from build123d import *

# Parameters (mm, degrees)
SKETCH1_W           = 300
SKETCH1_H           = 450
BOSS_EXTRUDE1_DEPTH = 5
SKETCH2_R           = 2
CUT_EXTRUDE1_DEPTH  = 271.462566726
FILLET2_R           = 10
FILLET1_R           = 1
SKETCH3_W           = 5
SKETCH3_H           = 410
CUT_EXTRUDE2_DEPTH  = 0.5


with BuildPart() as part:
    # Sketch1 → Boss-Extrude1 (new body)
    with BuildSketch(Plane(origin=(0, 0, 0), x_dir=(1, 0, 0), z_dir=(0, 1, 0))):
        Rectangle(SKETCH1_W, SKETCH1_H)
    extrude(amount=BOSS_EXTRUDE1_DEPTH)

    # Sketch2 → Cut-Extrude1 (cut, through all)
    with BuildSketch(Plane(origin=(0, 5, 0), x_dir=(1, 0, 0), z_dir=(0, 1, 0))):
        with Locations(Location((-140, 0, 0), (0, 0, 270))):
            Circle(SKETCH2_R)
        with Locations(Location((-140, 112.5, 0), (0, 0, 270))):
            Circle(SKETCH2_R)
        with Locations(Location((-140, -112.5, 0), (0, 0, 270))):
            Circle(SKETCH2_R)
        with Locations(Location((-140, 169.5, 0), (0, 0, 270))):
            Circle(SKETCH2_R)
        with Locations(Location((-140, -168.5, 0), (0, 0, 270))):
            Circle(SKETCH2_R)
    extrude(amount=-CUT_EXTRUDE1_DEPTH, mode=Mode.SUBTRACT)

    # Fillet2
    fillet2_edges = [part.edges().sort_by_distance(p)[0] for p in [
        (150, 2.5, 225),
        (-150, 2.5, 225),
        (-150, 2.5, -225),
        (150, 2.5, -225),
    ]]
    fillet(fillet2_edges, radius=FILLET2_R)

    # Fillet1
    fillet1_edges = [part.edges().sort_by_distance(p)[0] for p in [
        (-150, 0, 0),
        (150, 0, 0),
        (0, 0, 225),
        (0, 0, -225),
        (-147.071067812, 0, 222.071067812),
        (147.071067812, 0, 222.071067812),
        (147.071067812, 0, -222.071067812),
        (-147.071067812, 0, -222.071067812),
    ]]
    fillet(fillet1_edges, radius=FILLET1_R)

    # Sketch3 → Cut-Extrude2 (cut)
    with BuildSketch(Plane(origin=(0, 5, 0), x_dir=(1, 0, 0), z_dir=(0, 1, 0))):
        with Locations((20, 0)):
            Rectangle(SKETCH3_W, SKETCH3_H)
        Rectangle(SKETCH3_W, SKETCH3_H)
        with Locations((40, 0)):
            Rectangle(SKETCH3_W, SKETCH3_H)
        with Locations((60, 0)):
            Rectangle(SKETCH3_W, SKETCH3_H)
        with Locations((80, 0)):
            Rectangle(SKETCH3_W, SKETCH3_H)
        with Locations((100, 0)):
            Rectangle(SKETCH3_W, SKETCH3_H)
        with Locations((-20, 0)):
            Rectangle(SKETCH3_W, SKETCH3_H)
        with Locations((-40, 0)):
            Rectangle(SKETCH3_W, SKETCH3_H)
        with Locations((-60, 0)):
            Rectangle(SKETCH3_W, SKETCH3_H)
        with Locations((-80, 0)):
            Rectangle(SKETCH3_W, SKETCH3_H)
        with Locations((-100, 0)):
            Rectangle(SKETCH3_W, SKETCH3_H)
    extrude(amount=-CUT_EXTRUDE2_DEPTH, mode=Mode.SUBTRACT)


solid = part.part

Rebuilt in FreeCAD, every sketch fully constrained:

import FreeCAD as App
import Part
import Sketcher


def edges_at(feature, points):
    """Names of the edges that pass closest to the given points."""
    edges = feature.Shape.Edges
    near = lambda p: min(range(len(edges)), key=lambda i: edges[i].distToShape(Part.Vertex(*p))[0])
    return sorted({f"Edge{near(p) + 1}" for p in points})

doc = App.newDocument("Part")
params = doc.addObject("Spreadsheet::Sheet", "Params")
for row, (alias, value) in enumerate([
    ("sketch1_width", "300 mm"),
    ("sketch1_height", "450 mm"),
    ("pad1_length", "5 mm"),
    ("sketch2_diameter", "4 mm"),
    ("fillet_radius", "10 mm"),
    ("fillet2_radius", "1 mm"),
    ("sketch3_width", "5 mm"),
    ("sketch3_height", "410 mm"),
    ("pocket2_length", "0.5 mm"),
], start=1):
    params.set(f"A{row}", alias)
    params.set(f"B{row}", "=" + value)
    params.setAlias(f"B{row}", alias)

body = doc.addObject("PartDesign::Body", "Body")

sketch1 = body.newObject("Sketcher::SketchObject", "Sketch")
sketch1.AttachmentSupport = (doc.getObject("XZ_Plane"), [""])
sketch1.MapMode = "FlatFace"
sketch1.addGeometry([
    Part.LineSegment(App.Vector(-150, -225, 0), App.Vector(-150, 225, 0)),
    Part.LineSegment(App.Vector(-150, 225, 0), App.Vector(150, 225, 0)),
    Part.LineSegment(App.Vector(150, 225, 0), App.Vector(150, -225, 0)),
    Part.LineSegment(App.Vector(150, -225, 0), App.Vector(-150, -225, 0)),
], False)
sketch1.addConstraint([
    Sketcher.Constraint("Coincident", 0, 2, 1, 1),
    Sketcher.Constraint("Coincident", 1, 2, 2, 1),
    Sketcher.Constraint("Coincident", 2, 2, 3, 1),
    Sketcher.Constraint("Coincident", 3, 2, 0, 1),
    Sketcher.Constraint("Vertical", 0),
    Sketcher.Constraint("Horizontal", 1),
    Sketcher.Constraint("Vertical", 2),
    Sketcher.Constraint("Horizontal", 3),
    Sketcher.Constraint("Symmetric", 0, 2, 2, 2, -1, 1),
    Sketcher.Constraint("DistanceX", 1, 1, 1, 2, 300.0),
    Sketcher.Constraint("DistanceY", 0, 1, 0, 2, 450.0),
])
sketch1.setExpression("Constraints[9]", "Params.sketch1_width")
sketch1.setExpression("Constraints[10]", "Params.sketch1_height")
pad1 = body.newObject("PartDesign::Pad", "Pad")
pad1.Profile = sketch1
pad1.setExpression("Length", "Params.pad1_length")
pad1.Reversed = True

sketch2 = body.newObject("Sketcher::SketchObject", "Sketch001")
sketch2.AttachmentSupport = (doc.getObject("XZ_Plane"), [""])
sketch2.MapMode = "FlatFace"
sketch2.AttachmentOffset = App.Placement(App.Vector(0, 0, -5), App.Rotation())
sketch2.addGeometry([
    Part.Circle(App.Vector(-140, 0, 0), App.Vector(0, 0, 1), 2),
    Part.Circle(App.Vector(-140, -112.5, 0), App.Vector(0, 0, 1), 2),
    Part.Circle(App.Vector(-140, 112.5, 0), App.Vector(0, 0, 1), 2),
    Part.Circle(App.Vector(-140, -169.5, 0), App.Vector(0, 0, 1), 2),
    Part.Circle(App.Vector(-140, 168.5, 0), App.Vector(0, 0, 1), 2),
], False)
sketch2.addConstraint([
    Sketcher.Constraint("Equal", 0, 1),
    Sketcher.Constraint("Equal", 1, 2),
    Sketcher.Constraint("Equal", 2, 3),
    Sketcher.Constraint("Equal", 3, 4),
    Sketcher.Constraint("Symmetric", 1, 3, 2, 3, -1),
    Sketcher.Constraint("PointOnObject", 0, 3, -1),
    Sketcher.Constraint("Vertical", 0, 3, 1, 3),
    Sketcher.Constraint("Vertical", 2, 3, 3, 3),
    Sketcher.Constraint("Vertical", 3, 3, 4, 3),
    Sketcher.Constraint("Diameter", 0, 4.0),
    Sketcher.Constraint("DistanceX", 0, 3, -1, 1, 140.0),
    Sketcher.Constraint("DistanceY", 1, 3, 2, 3, 225.0),
    Sketcher.Constraint("DistanceY", 3, 3, 1, 3, 57.0),
    Sketcher.Constraint("DistanceY", 2, 3, 4, 3, 56.0),
])
sketch2.setExpression("Constraints[9]", "Params.sketch2_diameter")
pocket1 = body.newObject("PartDesign::Pocket", "Pocket")
pocket1.Profile = sketch2
pocket1.Type = "ThroughAll"
pocket1.Reversed = True
doc.recompute()

fillet = body.newObject("PartDesign::Fillet", "Fillet")
fillet.Base = (pocket1, edges_at(pocket1, [
    (150, 2.5, 225),
    (-150, 2.5, 225),
    (-150, 2.5, -225),
    (150, 2.5, -225),
]))
fillet.setExpression("Radius", "Params.fillet_radius")
doc.recompute()

fillet2 = body.newObject("PartDesign::Fillet", "Fillet001")
fillet2.Base = (fillet, edges_at(fillet, [
    (-150, 0, 0),
    (150, 0, 0),
    (0, 0, 225),
    (0, 0, -225),
    (-147.071, 0, 222.071),
    (147.071, 0, 222.071),
    (147.071, 0, -222.071),
    (-147.071, 0, -222.071),
]))
fillet2.setExpression("Radius", "Params.fillet2_radius")

sketch3 = body.newObject("Sketcher::SketchObject", "Sketch002")
sketch3.AttachmentSupport = (doc.getObject("XZ_Plane"), [""])
sketch3.MapMode = "FlatFace"
sketch3.AttachmentOffset = App.Placement(App.Vector(0, 0, -5), App.Rotation())
sketch3.addGeometry([
    Part.LineSegment(App.Vector(17.5, -205, 0), App.Vector(17.5, 205, 0)),
    Part.LineSegment(App.Vector(17.5, 205, 0), App.Vector(22.5, 205, 0)),
    Part.LineSegment(App.Vector(22.5, 205, 0), App.Vector(22.5, -205, 0)),
    Part.LineSegment(App.Vector(22.5, -205, 0), App.Vector(17.5, -205, 0)),
    Part.LineSegment(App.Vector(-2.5, -205, 0), App.Vector(-2.5, 205, 0)),
    Part.LineSegment(App.Vector(-2.5, 205, 0), App.Vector(2.5, 205, 0)),
    Part.LineSegment(App.Vector(2.5, 205, 0), App.Vector(2.5, -205, 0)),
    Part.LineSegment(App.Vector(2.5, -205, 0), App.Vector(-2.5, -205, 0)),
    Part.LineSegment(App.Vector(37.5, -205, 0), App.Vector(37.5, 205, 0)),
    Part.LineSegment(App.Vector(37.5, 205, 0), App.Vector(42.5, 205, 0)),
    Part.LineSegment(App.Vector(42.5, 205, 0), App.Vector(42.5, -205, 0)),
    Part.LineSegment(App.Vector(42.5, -205, 0), App.Vector(37.5, -205, 0)),
    Part.LineSegment(App.Vector(57.5, -205, 0), App.Vector(57.5, 205, 0)),
    Part.LineSegment(App.Vector(57.5, 205, 0), App.Vector(62.5, 205, 0)),
    Part.LineSegment(App.Vector(62.5, 205, 0), App.Vector(62.5, -205, 0)),
    Part.LineSegment(App.Vector(62.5, -205, 0), App.Vector(57.5, -205, 0)),
    Part.LineSegment(App.Vector(77.5, -205, 0), App.Vector(77.5, 205, 0)),
    Part.LineSegment(App.Vector(77.5, 205, 0), App.Vector(82.5, 205, 0)),
    Part.LineSegment(App.Vector(82.5, 205, 0), App.Vector(82.5, -205, 0)),
    Part.LineSegment(App.Vector(82.5, -205, 0), App.Vector(77.5, -205, 0)),
    Part.LineSegment(App.Vector(97.5, -205, 0), App.Vector(97.5, 205, 0)),
    Part.LineSegment(App.Vector(97.5, 205, 0), App.Vector(102.5, 205, 0)),
    Part.LineSegment(App.Vector(102.5, 205, 0), App.Vector(102.5, -205, 0)),
    Part.LineSegment(App.Vector(102.5, -205, 0), App.Vector(97.5, -205, 0)),
    Part.LineSegment(App.Vector(-22.5, -205, 0), App.Vector(-22.5, 205, 0)),
    Part.LineSegment(App.Vector(-22.5, 205, 0), App.Vector(-17.5, 205, 0)),
    Part.LineSegment(App.Vector(-17.5, 205, 0), App.Vector(-17.5, -205, 0)),
    Part.LineSegment(App.Vector(-17.5, -205, 0), App.Vector(-22.5, -205, 0)),
    Part.LineSegment(App.Vector(-42.5, -205, 0), App.Vector(-42.5, 205, 0)),
    Part.LineSegment(App.Vector(-42.5, 205, 0), App.Vector(-37.5, 205, 0)),
    Part.LineSegment(App.Vector(-37.5, 205, 0), App.Vector(-37.5, -205, 0)),
    Part.LineSegment(App.Vector(-37.5, -205, 0), App.Vector(-42.5, -205, 0)),
    Part.LineSegment(App.Vector(-62.5, -205, 0), App.Vector(-62.5, 205, 0)),
    Part.LineSegment(App.Vector(-62.5, 205, 0), App.Vector(-57.5, 205, 0)),
    Part.LineSegment(App.Vector(-57.5, 205, 0), App.Vector(-57.5, -205, 0)),
    Part.LineSegment(App.Vector(-57.5, -205, 0), App.Vector(-62.5, -205, 0)),
    Part.LineSegment(App.Vector(-82.5, -205, 0), App.Vector(-82.5, 205, 0)),
    Part.LineSegment(App.Vector(-82.5, 205, 0), App.Vector(-77.5, 205, 0)),
    Part.LineSegment(App.Vector(-77.5, 205, 0), App.Vector(-77.5, -205, 0)),
    Part.LineSegment(App.Vector(-77.5, -205, 0), App.Vector(-82.5, -205, 0)),
    Part.LineSegment(App.Vector(-102.5, -205, 0), App.Vector(-102.5, 205, 0)),
    Part.LineSegment(App.Vector(-102.5, 205, 0), App.Vector(-97.5, 205, 0)),
    Part.LineSegment(App.Vector(-97.5, 205, 0), App.Vector(-97.5, -205, 0)),
    Part.LineSegment(App.Vector(-97.5, -205, 0), App.Vector(-102.5, -205, 0)),
], False)
sketch3.addConstraint([
    Sketcher.Constraint("Coincident", 0, 2, 1, 1),
    Sketcher.Constraint("Coincident", 1, 2, 2, 1),
    Sketcher.Constraint("Coincident", 2, 2, 3, 1),
    Sketcher.Constraint("Coincident", 3, 2, 0, 1),
    Sketcher.Constraint("Coincident", 4, 2, 5, 1),
    Sketcher.Constraint("Coincident", 5, 2, 6, 1),
    Sketcher.Constraint("Coincident", 6, 2, 7, 1),
    Sketcher.Constraint("Coincident", 7, 2, 4, 1),
    Sketcher.Constraint("Coincident", 8, 2, 9, 1),
    Sketcher.Constraint("Coincident", 9, 2, 10, 1),
    Sketcher.Constraint("Coincident", 10, 2, 11, 1),
    Sketcher.Constraint("Coincident", 11, 2, 8, 1),
    Sketcher.Constraint("Coincident", 12, 2, 13, 1),
    Sketcher.Constraint("Coincident", 13, 2, 14, 1),
    Sketcher.Constraint("Coincident", 14, 2, 15, 1),
    Sketcher.Constraint("Coincident", 15, 2, 12, 1),
    Sketcher.Constraint("Coincident", 16, 2, 17, 1),
    Sketcher.Constraint("Coincident", 17, 2, 18, 1),
    Sketcher.Constraint("Coincident", 18, 2, 19, 1),
    Sketcher.Constraint("Coincident", 19, 2, 16, 1),
    Sketcher.Constraint("Coincident", 20, 2, 21, 1),
    Sketcher.Constraint("Coincident", 21, 2, 22, 1),
    Sketcher.Constraint("Coincident", 22, 2, 23, 1),
    Sketcher.Constraint("Coincident", 23, 2, 20, 1),
    Sketcher.Constraint("Coincident", 24, 2, 25, 1),
    Sketcher.Constraint("Coincident", 25, 2, 26, 1),
    Sketcher.Constraint("Coincident", 26, 2, 27, 1),
    Sketcher.Constraint("Coincident", 27, 2, 24, 1),
    Sketcher.Constraint("Coincident", 28, 2, 29, 1),
    Sketcher.Constraint("Coincident", 29, 2, 30, 1),
    Sketcher.Constraint("Coincident", 30, 2, 31, 1),
    Sketcher.Constraint("Coincident", 31, 2, 28, 1),
    Sketcher.Constraint("Coincident", 32, 2, 33, 1),
    Sketcher.Constraint("Coincident", 33, 2, 34, 1),
    Sketcher.Constraint("Coincident", 34, 2, 35, 1),
    Sketcher.Constraint("Coincident", 35, 2, 32, 1),
    Sketcher.Constraint("Coincident", 36, 2, 37, 1),
    Sketcher.Constraint("Coincident", 37, 2, 38, 1),
    Sketcher.Constraint("Coincident", 38, 2, 39, 1),
    Sketcher.Constraint("Coincident", 39, 2, 36, 1),
    Sketcher.Constraint("Coincident", 40, 2, 41, 1),
    Sketcher.Constraint("Coincident", 41, 2, 42, 1),
    Sketcher.Constraint("Coincident", 42, 2, 43, 1),
    Sketcher.Constraint("Coincident", 43, 2, 40, 1),
    Sketcher.Constraint("Vertical", 0),
    Sketcher.Constraint("Horizontal", 1),
    Sketcher.Constraint("Vertical", 2),
    Sketcher.Constraint("Horizontal", 3),
    Sketcher.Constraint("Vertical", 4),
    Sketcher.Constraint("Horizontal", 5),
    Sketcher.Constraint("Vertical", 6),
    Sketcher.Constraint("Horizontal", 7),
    Sketcher.Constraint("Vertical", 8),
    Sketcher.Constraint("Horizontal", 9),
    Sketcher.Constraint("Vertical", 10),
    Sketcher.Constraint("Horizontal", 11),
    Sketcher.Constraint("Vertical", 12),
    Sketcher.Constraint("Horizontal", 13),
    Sketcher.Constraint("Vertical", 14),
    Sketcher.Constraint("Horizontal", 15),
    Sketcher.Constraint("Vertical", 16),
    Sketcher.Constraint("Horizontal", 17),
    Sketcher.Constraint("Vertical", 18),
    Sketcher.Constraint("Horizontal", 19),
    Sketcher.Constraint("Vertical", 20),
    Sketcher.Constraint("Horizontal", 21),
    Sketcher.Constraint("Vertical", 22),
    Sketcher.Constraint("Horizontal", 23),
    Sketcher.Constraint("Vertical", 24),
    Sketcher.Constraint("Horizontal", 25),
    Sketcher.Constraint("Vertical", 26),
    Sketcher.Constraint("Horizontal", 27),
    Sketcher.Constraint("Vertical", 28),
    Sketcher.Constraint("Horizontal", 29),
    Sketcher.Constraint("Vertical", 30),
    Sketcher.Constraint("Horizontal", 31),
    Sketcher.Constraint("Vertical", 32),
    Sketcher.Constraint("Horizontal", 33),
    Sketcher.Constraint("Vertical", 34),
    Sketcher.Constraint("Horizontal", 35),
    Sketcher.Constraint("Vertical", 36),
    Sketcher.Constraint("Horizontal", 37),
    Sketcher.Constraint("Vertical", 38),
    Sketcher.Constraint("Horizontal", 39),
    Sketcher.Constraint("Vertical", 40),
    Sketcher.Constraint("Horizontal", 41),
    Sketcher.Constraint("Vertical", 42),
    Sketcher.Constraint("Horizontal", 43),
    Sketcher.Constraint("Symmetric", 4, 2, 6, 2, -1, 1),
    Sketcher.Constraint("Symmetric", 2, 2, 24, 2, -1, 1),
    Sketcher.Constraint("Symmetric", 0, 2, 26, 2, -1, 1),
    Sketcher.Constraint("Symmetric", 10, 2, 28, 2, -1, 1),
    Sketcher.Constraint("Symmetric", 8, 2, 30, 2, -1, 1),
    Sketcher.Constraint("Symmetric", 14, 2, 32, 2, -1, 1),
    Sketcher.Constraint("Symmetric", 12, 2, 34, 2, -1, 1),
    Sketcher.Constraint("Symmetric", 18, 2, 36, 2, -1, 1),
    Sketcher.Constraint("Symmetric", 16, 2, 38, 2, -1, 1),
    Sketcher.Constraint("Symmetric", 22, 2, 40, 2, -1, 1),
    Sketcher.Constraint("Symmetric", 20, 2, 42, 2, -1, 1),
    Sketcher.Constraint("Horizontal", 1, 2, 4, 2),
    Sketcher.Constraint("Horizontal", 3, 2, 6, 2),
    Sketcher.Constraint("Horizontal", 5, 2, 8, 2),
    Sketcher.Constraint("Horizontal", 7, 2, 10, 2),
    Sketcher.Constraint("Horizontal", 9, 2, 12, 2),
    Sketcher.Constraint("Horizontal", 11, 2, 14, 2),
    Sketcher.Constraint("Horizontal", 13, 2, 16, 2),
    Sketcher.Constraint("Horizontal", 15, 2, 18, 2),
    Sketcher.Constraint("Horizontal", 17, 2, 20, 2),
    Sketcher.Constraint("Horizontal", 19, 2, 22, 2),
    Sketcher.Constraint("Equal", 3, 5),
    Sketcher.Constraint("Equal", 7, 9),
    Sketcher.Constraint("Equal", 11, 13),
    Sketcher.Constraint("Equal", 15, 17),
    Sketcher.Constraint("Equal", 19, 21),
    Sketcher.Constraint("DistanceX", 1, 1, 1, 2, 5.0),
    Sketcher.Constraint("DistanceY", 0, 1, 0, 2, 410.0),
    Sketcher.Constraint("DistanceX", 4, 2, 0, 2, 20.0),
    Sketcher.Constraint("DistanceX", 1, 2, 8, 2, 15.0),
    Sketcher.Constraint("DistanceX", 9, 2, 12, 2, 15.0),
    Sketcher.Constraint("DistanceX", 13, 2, 16, 2, 15.0),
    Sketcher.Constraint("DistanceX", 17, 2, 20, 2, 15.0),
])
sketch3.setExpression("Constraints[114]", "Params.sketch3_width")
sketch3.setExpression("Constraints[115]", "Params.sketch3_height")
pocket2 = body.newObject("PartDesign::Pocket", "Pocket001")
pocket2.Profile = sketch3
pocket2.setExpression("Length", "Params.pocket2_length")
pocket2.Reversed = True

doc.recompute()
